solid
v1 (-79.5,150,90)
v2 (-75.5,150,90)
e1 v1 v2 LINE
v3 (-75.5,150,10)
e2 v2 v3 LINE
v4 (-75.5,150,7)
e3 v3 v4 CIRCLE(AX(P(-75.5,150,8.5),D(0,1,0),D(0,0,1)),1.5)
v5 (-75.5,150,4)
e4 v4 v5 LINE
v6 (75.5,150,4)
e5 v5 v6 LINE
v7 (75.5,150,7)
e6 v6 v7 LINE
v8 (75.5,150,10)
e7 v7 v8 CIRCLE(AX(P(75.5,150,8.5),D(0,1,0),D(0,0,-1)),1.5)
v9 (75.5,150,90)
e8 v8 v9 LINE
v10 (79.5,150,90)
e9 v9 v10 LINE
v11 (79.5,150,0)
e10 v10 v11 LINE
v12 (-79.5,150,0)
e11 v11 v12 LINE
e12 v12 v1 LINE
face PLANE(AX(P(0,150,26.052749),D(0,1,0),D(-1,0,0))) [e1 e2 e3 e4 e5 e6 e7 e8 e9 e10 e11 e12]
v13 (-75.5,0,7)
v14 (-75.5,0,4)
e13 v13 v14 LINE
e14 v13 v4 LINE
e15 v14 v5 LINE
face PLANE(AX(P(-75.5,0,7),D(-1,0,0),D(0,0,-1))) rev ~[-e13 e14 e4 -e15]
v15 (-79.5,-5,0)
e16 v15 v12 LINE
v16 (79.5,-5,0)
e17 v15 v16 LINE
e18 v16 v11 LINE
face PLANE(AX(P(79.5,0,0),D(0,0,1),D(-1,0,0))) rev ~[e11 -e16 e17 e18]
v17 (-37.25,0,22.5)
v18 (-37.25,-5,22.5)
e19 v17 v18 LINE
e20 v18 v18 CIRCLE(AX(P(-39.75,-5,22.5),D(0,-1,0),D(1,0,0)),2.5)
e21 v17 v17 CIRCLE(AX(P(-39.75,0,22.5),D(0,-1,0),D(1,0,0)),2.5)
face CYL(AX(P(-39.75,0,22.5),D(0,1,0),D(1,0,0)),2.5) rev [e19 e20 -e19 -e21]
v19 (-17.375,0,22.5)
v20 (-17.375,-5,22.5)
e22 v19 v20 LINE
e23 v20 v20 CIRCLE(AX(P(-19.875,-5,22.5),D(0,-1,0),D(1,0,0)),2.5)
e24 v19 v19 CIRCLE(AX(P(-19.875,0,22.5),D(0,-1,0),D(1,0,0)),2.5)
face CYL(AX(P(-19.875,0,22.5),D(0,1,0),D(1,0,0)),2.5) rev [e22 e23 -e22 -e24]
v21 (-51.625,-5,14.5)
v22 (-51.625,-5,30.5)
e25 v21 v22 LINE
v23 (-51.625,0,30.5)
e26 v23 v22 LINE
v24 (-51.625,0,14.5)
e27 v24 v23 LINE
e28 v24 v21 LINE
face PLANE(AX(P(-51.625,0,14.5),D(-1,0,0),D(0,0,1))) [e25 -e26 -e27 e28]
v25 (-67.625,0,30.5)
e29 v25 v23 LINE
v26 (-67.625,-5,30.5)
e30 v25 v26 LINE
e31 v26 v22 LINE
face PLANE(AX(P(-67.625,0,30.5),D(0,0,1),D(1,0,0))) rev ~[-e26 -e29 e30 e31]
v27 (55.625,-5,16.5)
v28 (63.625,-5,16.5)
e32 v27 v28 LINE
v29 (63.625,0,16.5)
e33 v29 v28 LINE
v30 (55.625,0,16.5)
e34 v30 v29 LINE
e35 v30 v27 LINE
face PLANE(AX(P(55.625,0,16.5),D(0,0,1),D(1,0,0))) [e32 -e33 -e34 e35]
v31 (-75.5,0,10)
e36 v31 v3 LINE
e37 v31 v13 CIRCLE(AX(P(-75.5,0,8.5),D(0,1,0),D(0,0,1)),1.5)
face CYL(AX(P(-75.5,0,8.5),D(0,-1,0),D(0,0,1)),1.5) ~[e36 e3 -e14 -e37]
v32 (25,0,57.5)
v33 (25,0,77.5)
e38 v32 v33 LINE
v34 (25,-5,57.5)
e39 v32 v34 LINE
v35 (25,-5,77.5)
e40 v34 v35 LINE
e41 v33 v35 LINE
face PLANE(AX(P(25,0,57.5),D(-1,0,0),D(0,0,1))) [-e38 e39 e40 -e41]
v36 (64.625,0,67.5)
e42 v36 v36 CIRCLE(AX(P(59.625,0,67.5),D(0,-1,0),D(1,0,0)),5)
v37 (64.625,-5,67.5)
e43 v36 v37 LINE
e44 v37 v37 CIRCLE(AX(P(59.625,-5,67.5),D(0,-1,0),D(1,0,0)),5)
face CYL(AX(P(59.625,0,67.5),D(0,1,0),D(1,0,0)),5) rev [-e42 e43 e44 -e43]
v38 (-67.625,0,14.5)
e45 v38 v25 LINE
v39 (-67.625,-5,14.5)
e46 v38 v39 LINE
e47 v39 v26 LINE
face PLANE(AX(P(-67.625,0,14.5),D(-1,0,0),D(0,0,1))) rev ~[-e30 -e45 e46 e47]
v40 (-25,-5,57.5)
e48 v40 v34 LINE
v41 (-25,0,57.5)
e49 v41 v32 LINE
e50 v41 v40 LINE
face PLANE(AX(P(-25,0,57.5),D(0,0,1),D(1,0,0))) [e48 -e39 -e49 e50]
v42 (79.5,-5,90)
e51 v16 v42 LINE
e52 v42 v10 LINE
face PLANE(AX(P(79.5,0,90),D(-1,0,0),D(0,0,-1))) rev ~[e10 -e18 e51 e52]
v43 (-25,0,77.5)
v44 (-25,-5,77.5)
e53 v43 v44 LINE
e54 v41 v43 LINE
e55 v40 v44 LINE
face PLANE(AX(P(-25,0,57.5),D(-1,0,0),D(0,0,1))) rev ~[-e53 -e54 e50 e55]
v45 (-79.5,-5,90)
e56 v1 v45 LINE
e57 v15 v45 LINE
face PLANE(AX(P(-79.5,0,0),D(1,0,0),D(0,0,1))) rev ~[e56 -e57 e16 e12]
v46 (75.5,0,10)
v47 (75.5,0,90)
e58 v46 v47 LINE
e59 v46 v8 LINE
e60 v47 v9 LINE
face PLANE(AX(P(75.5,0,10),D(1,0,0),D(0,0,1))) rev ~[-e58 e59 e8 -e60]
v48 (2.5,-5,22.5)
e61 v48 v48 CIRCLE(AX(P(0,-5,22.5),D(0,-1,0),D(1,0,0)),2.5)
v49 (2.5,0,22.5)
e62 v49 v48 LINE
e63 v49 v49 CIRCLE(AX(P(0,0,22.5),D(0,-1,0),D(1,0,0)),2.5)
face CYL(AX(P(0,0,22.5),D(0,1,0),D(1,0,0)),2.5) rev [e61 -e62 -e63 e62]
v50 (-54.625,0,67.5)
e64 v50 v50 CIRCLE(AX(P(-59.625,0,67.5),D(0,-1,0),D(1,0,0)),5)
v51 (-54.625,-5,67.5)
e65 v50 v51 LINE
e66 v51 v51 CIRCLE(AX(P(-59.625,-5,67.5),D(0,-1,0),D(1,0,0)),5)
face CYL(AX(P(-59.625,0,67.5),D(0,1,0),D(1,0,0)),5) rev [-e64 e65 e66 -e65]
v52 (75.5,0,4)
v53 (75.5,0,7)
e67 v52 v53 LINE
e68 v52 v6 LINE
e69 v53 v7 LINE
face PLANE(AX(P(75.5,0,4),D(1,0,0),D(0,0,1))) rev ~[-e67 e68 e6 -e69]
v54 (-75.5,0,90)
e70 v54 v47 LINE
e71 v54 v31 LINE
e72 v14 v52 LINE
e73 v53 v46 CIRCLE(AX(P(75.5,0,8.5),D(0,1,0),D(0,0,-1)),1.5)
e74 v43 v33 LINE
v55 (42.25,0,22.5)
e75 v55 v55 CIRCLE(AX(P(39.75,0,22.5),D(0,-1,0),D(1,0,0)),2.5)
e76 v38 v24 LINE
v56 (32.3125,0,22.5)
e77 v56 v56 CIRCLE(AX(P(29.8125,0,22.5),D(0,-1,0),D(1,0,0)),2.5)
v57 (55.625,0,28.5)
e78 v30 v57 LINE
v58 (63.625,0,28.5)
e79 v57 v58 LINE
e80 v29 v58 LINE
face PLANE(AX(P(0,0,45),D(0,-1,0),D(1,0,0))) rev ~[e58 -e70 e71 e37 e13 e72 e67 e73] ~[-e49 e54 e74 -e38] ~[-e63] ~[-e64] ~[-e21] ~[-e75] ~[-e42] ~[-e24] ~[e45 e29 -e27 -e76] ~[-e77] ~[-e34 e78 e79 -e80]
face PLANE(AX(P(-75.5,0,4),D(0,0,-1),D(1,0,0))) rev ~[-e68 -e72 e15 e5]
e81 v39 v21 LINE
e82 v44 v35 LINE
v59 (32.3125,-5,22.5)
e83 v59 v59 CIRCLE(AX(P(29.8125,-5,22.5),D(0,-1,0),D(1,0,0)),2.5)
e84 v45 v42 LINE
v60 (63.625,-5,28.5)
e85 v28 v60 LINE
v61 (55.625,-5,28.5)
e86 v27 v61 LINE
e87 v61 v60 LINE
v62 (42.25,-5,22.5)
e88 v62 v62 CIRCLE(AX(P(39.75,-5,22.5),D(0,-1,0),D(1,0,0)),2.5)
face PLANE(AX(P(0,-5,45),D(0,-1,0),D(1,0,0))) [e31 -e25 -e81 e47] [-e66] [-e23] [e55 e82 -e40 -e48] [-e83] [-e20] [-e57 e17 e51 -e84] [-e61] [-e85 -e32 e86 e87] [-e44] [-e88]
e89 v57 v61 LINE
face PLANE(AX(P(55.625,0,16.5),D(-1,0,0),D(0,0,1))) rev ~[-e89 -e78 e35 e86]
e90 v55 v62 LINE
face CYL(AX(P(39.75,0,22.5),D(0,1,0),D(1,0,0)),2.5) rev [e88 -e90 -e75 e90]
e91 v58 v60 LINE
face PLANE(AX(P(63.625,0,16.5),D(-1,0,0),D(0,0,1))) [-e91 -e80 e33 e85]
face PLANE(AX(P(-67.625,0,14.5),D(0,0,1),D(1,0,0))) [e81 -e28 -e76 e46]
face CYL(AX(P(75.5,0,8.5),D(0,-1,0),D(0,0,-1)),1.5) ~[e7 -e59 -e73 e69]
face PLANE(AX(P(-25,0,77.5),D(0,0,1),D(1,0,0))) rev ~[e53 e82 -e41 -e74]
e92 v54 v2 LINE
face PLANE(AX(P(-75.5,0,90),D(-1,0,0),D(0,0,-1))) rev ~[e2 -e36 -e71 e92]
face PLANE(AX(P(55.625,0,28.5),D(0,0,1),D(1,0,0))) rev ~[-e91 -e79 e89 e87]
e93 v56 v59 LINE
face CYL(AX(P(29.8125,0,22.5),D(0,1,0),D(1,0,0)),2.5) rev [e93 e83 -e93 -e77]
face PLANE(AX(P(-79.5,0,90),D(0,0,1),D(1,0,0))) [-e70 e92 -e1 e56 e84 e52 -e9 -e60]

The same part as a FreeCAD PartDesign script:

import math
import FreeCAD as App
import Part
import Sketcher
from FreeCAD import Vector

doc = App.newDocument("Part")
body = doc.addObject("PartDesign::Body", "Body")

# Sketch on XZ plane
sketch1 = body.newObject("Sketcher::SketchObject", "Sketch")
sketch1.AttachmentSupport = (doc.getObject("XZ_Plane"), [""])
sketch1.MapMode = "FlatFace"
sketch1.addGeometry([
    Part.LineSegment(Vector(-79.5, 90, 0), Vector(-79.5, 0, 0)),  # 0
    Part.LineSegment(Vector(-79.5, 0, 0), Vector(79.5, 0, 0)),  # 1
    Part.LineSegment(Vector(79.5, 0, 0), Vector(79.5, 90, 0)),  # 2
    Part.LineSegment(Vector(79.5, 90, 0), Vector(-79.5, 90, 0)),  # 3
    Part.LineSegment(Vector(-51.625, 14.5, 0), Vector(-67.625, 14.5, 0)),  # 4
    Part.LineSegment(Vector(-67.625, 14.5, 0), Vector(-67.625, 30.5, 0)),  # 5
    Part.LineSegment(Vector(-67.625, 30.5, 0), Vector(-51.625, 30.5, 0)),  # 6
    Part.LineSegment(Vector(-51.625, 30.5, 0), Vector(-51.625, 14.5, 0)),  # 7
    Part.Circle(Vector(-39.75, 22.5, 0), Vector(0, 0, 1), 2.5),  # 8
    Part.Circle(Vector(-19.875, 22.5, 0), Vector(0, 0, 1), 2.5),  # 9
    Part.Circle(Vector(0, 22.5, 0), Vector(0, 0, 1), 2.5),  # 10
    Part.Circle(Vector(29.8125, 22.5, 0), Vector(0, 0, 1), 2.5),  # 11
    Part.Circle(Vector(39.75, 22.5, 0), Vector(0, 0, 1), 2.5),  # 12
    Part.LineSegment(Vector(63.625, 16.5, 0), Vector(55.625, 16.5, 0)),  # 13
    Part.LineSegment(Vector(55.625, 16.5, 0), Vector(55.625, 28.5, 0)),  # 14
    Part.LineSegment(Vector(55.625, 28.5, 0), Vector(63.625, 28.5, 0)),  # 15
    Part.LineSegment(Vector(63.625, 28.5, 0), Vector(63.625, 16.5, 0)),  # 16
    Part.Circle(Vector(-59.625, 67.5, 0), Vector(0, 0, 1), 5),  # 17
    Part.LineSegment(Vector(25, 57.5, 0), Vector(-25, 57.5, 0)),  # 18
    Part.LineSegment(Vector(-25, 57.5, 0), Vector(-25, 77.5, 0)),  # 19
    Part.LineSegment(Vector(-25, 77.5, 0), Vector(25, 77.5, 0)),  # 20
    Part.LineSegment(Vector(25, 77.5, 0), Vector(25, 57.5, 0)),  # 21
    Part.Circle(Vector(59.625, 67.5, 0), Vector(0, 0, 1), 5),  # 22
], False)
sketch1.addConstraint([
    Sketcher.Constraint("Coincident", 0, 2, 1, 1),
    Sketcher.Constraint("Coincident", 1, 2, 2, 1),
    Sketcher.Constraint("Coincident", 2, 2, 3, 1),
    Sketcher.Constraint("Coincident", 3, 2, 0, 1),
    Sketcher.Constraint("Coincident", 4, 2, 5, 1),
    Sketcher.Constraint("Coincident", 5, 2, 6, 1),
    Sketcher.Constraint("Coincident", 6, 2, 7, 1),
    Sketcher.Constraint("Coincident", 7, 2, 4, 1),
    Sketcher.Constraint("Coincident", 13, 2, 14, 1),
    Sketcher.Constraint("Coincident", 14, 2, 15, 1),
    Sketcher.Constraint("Coincident", 15, 2, 16, 1),
    Sketcher.Constraint("Coincident", 16, 2, 13, 1),
    Sketcher.Constraint("Coincident", 18, 2, 19, 1),
    Sketcher.Constraint("Coincident", 19, 2, 20, 1),
    Sketcher.Constraint("Coincident", 20, 2, 21, 1),
    Sketcher.Constraint("Coincident", 21, 2, 18, 1),
    Sketcher.Constraint("Vertical", 0),
    Sketcher.Constraint("Horizontal", 1),
    Sketcher.Constraint("Vertical", 2),
    Sketcher.Constraint("Horizontal", 3),
    Sketcher.Constraint("Horizontal", 4),
    Sketcher.Constraint("Vertical", 5),
    Sketcher.Constraint("Horizontal", 6),
    Sketcher.Constraint("Vertical", 7),
    Sketcher.Constraint("Horizontal", 13),
    Sketcher.Constraint("Vertical", 14),
    Sketcher.Constraint("Horizontal", 15),
    Sketcher.Constraint("Vertical", 16),
    Sketcher.Constraint("Horizontal", 18),
    Sketcher.Constraint("Vertical", 19),
    Sketcher.Constraint("Horizontal", 20),
    Sketcher.Constraint("Vertical", 21),
    Sketcher.Constraint("Equal", 8, 9),
    Sketcher.Constraint("Equal", 9, 10),
    Sketcher.Constraint("Equal", 10, 11),
    Sketcher.Constraint("Equal", 11, 12),
    Sketcher.Constraint("Equal", 17, 22),
    Sketcher.Constraint("Symmetric", 0, 2, 1, 2, -1, 1),
    Sketcher.Constraint("Symmetric", 8, 3, 12, 3, -2),
    Sketcher.Constraint("Symmetric", 17, 3, 22, 3, -2),
    Sketcher.Constraint("PointOnObject", 10, 3, -2),
    Sketcher.Constraint("Horizontal", 8, 3, 9, 3),
    Sketcher.Constraint("Horizontal", 9, 3, 10, 3),
    Sketcher.Constraint("Horizontal", 10, 3, 11, 3),
    Sketcher.Constraint("Equal", 6, 5),
    Sketcher.Constraint("Diameter", 8, 5.0),
    Sketcher.Constraint("Diameter", 17, 10.0),
    Sketcher.Constraint("DistanceX", 1, 1, 1, 2, 159.0),
    Sketcher.Constraint("DistanceX", 4, 2, 4, 1, 16.0),
    Sketcher.Constraint("DistanceX", 13, 2, 13, 1, 8.0),
    Sketcher.Constraint("DistanceX", 18, 2, 18, 1, 50.0),
    Sketcher.Constraint("DistanceY", 0, 2, 0, 1, 90.0),
    Sketcher.Constraint("DistanceY", 14, 1, 14, 2, 12.0),
    Sketcher.Constraint("DistanceY", 19, 1, 19, 2, 20.0),
    Sketcher.Constraint("DistanceX", 18, 2, -1, 1, 25.0),
    Sketcher.Constraint("DistanceY", 8, 3, 17, 3, 45.0),
    Sketcher.Constraint("DistanceY", 4, 2, 8, 3, 8.0),
    Sketcher.Constraint("DistanceX", 4, 2, 17, 3, 8.0),
    Sketcher.Constraint("DistanceY", 13, 2, 12, 3, 6.0),
    Sketcher.Constraint("DistanceX", 13, 2, 22, 3, 4.0),
    Sketcher.Constraint("DistanceY", 9, 3, 18, 2, 35.0),
    Sketcher.Constraint("DistanceY", -1, 1, 8, 3, 22.5),
    Sketcher.Constraint("DistanceX", 8, 3, 12, 3, 79.5),
    Sketcher.Constraint("DistanceX", 9, 3, 22, 3, 79.5),
    Sketcher.Constraint("DistanceX", 17, 3, 9, 3, 39.75),
    Sketcher.Constraint("DistanceX", -1, 1, 11, 3, 29.8125),
])
pad1 = body.newObject("PartDesign::Pad", "Pad")
pad1.Profile = sketch1
pad1.Length = 5

# Sketch on XZ plane
sketch2 = body.newObject("Sketcher::SketchObject", "Sketch001")
sketch2.AttachmentSupport = (doc.getObject("XZ_Plane"), [""])
sketch2.MapMode = "FlatFace"
sketch2.addGeometry([
    Part.LineSegment(Vector(-75.5, 4, 0), Vector(75.5, 4, 0)),  # 0
    Part.LineSegment(Vector(75.5, 4, 0), Vector(75.5, 7, 0)),  # 1
    Part.ArcOfCircle(Part.Circle(Vector(75.5, 8.5, 0), Vector(0, 0, 1), 1.5), math.radians(90), math.radians(270)),  # 2
    Part.LineSegment(Vector(75.5, 10, 0), Vector(75.5, 90, 0)),  # 3
    Part.LineSegment(Vector(75.5, 90, 0), Vector(79.5, 90, 0)),  # 4
    Part.LineSegment(Vector(79.5, 90, 0), Vector(79.5, 0, 0)),  # 5
    Part.LineSegment(Vector(79.5, 0, 0), Vector(-79.5, 0, 0)),  # 6
    Part.LineSegment(Vector(-79.5, 0, 0), Vector(-79.5, 90, 0)),  # 7
    Part.LineSegment(Vector(-79.5, 90, 0), Vector(-75.5, 90, 0)),  # 8
    Part.LineSegment(Vector(-75.5, 90, 0), Vector(-75.5, 10, 0)),  # 9
    Part.ArcOfCircle(Part.Circle(Vector(-75.5, 8.5, 0), Vector(0, 0, 1), 1.5), math.radians(-90), math.radians(90)),  # 10
    Part.LineSegment(Vector(-75.5, 7, 0), Vector(-75.5, 4, 0)),  # 11
], False)
sketch2.addConstraint([
    Sketcher.Constraint("Coincident", 0, 2, 1, 1),
    Sketcher.Constraint("Coincident", 1, 2, 2, 2),
    Sketcher.Constraint("Coincident", 2, 1, 3, 1),
    Sketcher.Constraint("Coincident", 3, 2, 4, 1),
    Sketcher.Constraint("Coincident", 4, 2, 5, 1),
    Sketcher.Constraint("Coincident", 5, 2, 6, 1),
    Sketcher.Constraint("Coincident", 6, 2, 7, 1),
    Sketcher.Constraint("Coincident", 7, 2, 8, 1),
    Sketcher.Constraint("Coincident", 8, 2, 9, 1),
    Sketcher.Constraint("Coincident", 9, 2, 10, 2),
    Sketcher.Constraint("Coincident", 10, 1, 11, 1),
    Sketcher.Constraint("Coincident", 11, 2, 0, 1),
    Sketcher.Constraint("Horizontal", 0),
    Sketcher.Constraint("Vertical", 1),
    Sketcher.Constraint("Vertical", 3),
    Sketcher.Constraint("Horizontal", 4),
    Sketcher.Constraint("Vertical", 5),
    Sketcher.Constraint("Horizontal", 6),
    Sketcher.Constraint("Vertical", 7),
    Sketcher.Constraint("Horizontal", 8),
    Sketcher.Constraint("Vertical", 9),
    Sketcher.Constraint("Vertical", 11),
    Sketcher.Constraint("Equal", 2, 10),
    Sketcher.Constraint("Symmetric", 5, 2, 6, 2, -1, 1),
    Sketcher.Constraint("Symmetric", 2, 3, 10, 3, -2),
    Sketcher.Constraint("Symmetric", 3, 2, 8, 2, -2),
    Sketcher.Constraint("Vertical", 2, 3, 0, 2),
    Sketcher.Constraint("Vertical", 1, 2, 2, 1),
    Sketcher.Constraint("Vertical", 9, 2, 10, 1),
    Sketcher.Constraint("Radius", 2, 1.5),
    Sketcher.Constraint("DistanceX", 0, 1, 0, 2, 151.0),
    Sketcher.Constraint("DistanceX", 4, 1, 4, 2, 4.0),
    Sketcher.Constraint("DistanceY", 1, 1, 1, 2, 3.0),
    Sketcher.Constraint("DistanceY", 3, 1, 3, 2, 80.0),
    Sketcher.Constraint("DistanceY", 5, 2, 5, 1, 90.0),
])
pad2 = body.newObject("PartDesign::Pad", "Pad001")
pad2.Profile = sketch2
pad2.Length = 150
pad2.Reversed = True

doc.recompute()
